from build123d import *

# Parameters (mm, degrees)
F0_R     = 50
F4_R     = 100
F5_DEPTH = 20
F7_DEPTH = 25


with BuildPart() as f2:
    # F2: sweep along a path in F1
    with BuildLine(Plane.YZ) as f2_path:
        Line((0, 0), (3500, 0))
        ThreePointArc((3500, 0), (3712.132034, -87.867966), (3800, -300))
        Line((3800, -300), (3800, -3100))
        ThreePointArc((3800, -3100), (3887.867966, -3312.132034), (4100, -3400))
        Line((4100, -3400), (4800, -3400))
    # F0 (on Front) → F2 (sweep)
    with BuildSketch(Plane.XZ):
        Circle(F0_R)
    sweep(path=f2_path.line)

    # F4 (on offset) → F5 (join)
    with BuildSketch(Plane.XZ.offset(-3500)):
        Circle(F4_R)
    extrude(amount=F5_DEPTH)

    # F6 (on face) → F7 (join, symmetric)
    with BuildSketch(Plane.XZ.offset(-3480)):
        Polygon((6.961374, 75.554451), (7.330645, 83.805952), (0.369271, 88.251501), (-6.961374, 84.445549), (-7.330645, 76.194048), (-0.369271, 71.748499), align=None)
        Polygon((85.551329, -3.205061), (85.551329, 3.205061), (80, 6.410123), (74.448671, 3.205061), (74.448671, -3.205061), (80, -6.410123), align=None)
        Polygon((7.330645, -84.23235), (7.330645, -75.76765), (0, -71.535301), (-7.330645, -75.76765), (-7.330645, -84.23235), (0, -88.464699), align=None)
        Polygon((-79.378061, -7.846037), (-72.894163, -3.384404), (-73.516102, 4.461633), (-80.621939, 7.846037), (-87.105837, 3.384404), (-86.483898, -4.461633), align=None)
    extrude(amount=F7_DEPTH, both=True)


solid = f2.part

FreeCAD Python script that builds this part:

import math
import FreeCAD as App
import Part
import Sketcher

V = App.Vector
Q = App.Units.Quantity


def add_polygon(sketch, points):
    """Adds a closed chain of lines whose ends are joined by coincident constraints."""
    first, n = sketch.GeometryCount, len(points)
    for a, b in zip(points, points[1:] + points[:1]):
        sketch.addGeometry(Part.LineSegment(App.Vector(*a, 0), App.Vector(*b, 0)), False)
    for i in range(n):
        sketch.addConstraint(Sketcher.Constraint("Coincident", first + i, 2, first + (i + 1) % n, 1))

doc = App.newDocument("Part")
body = doc.addObject("PartDesign::Body", "Body")

sketch1 = doc.addObject("Sketcher::SketchObject", "Sketch")
body.addObject(sketch1)
sketch1.AttachmentSupport = (doc.XZ_Plane, [""])
sketch1.MapMode = "FlatFace"
sketch1.addGeometry(Part.Circle(V(0, 0, 0), V(0, 0, 1), 50), False)
sketch1.addConstraint(Sketcher.Constraint("Coincident", 0, 3, -1, 1))
sketch1.addConstraint(Sketcher.Constraint("Diameter", 0, 100.0))

sketch2 = doc.addObject("Sketcher::SketchObject", "Sketch001")
body.addObject(sketch2)
sketch2.AttachmentSupport = (doc.YZ_Plane, [""])
sketch2.MapMode = "FlatFace"
sketch2.addGeometry(Part.LineSegment(V(0, 0, 0), V(3500, 0, 0)), False)
sketch2.addGeometry(Part.ArcOfCircle(Part.Circle(V(3500, -300, 0), V(0, 0, 1), 300), math.radians(0), math.radians(90)), False)
sketch2.addGeometry(Part.LineSegment(V(3800, -300, 0), V(3800, -3100, 0)), False)
sketch2.addGeometry(Part.ArcOfCircle(Part.Circle(V(4100, -3100, 0), V(0, 0, 1), 300), math.radians(-180), math.radians(-90)), False)
sketch2.addGeometry(Part.LineSegment(V(4100, -3400, 0), V(4800, -3400, 0)), False)
sketch2.addConstraint(Sketcher.Constraint("Tangent", 0, 2, 1, 2))
sketch2.addConstraint(Sketcher.Constraint("Tangent", 1, 1, 2, 1))
sketch2.addConstraint(Sketcher.Constraint("Tangent", 2, 2, 3, 1))
sketch2.addConstraint(Sketcher.Constraint("Tangent", 3, 2, 4, 1))
sketch2.addConstraint(Sketcher.Constraint("Horizontal", 0))
sketch2.addConstraint(Sketcher.Constraint("Vertical", 2))
sketch2.addConstraint(Sketcher.Constraint("Horizontal", 4))
sketch2.addConstraint(Sketcher.Constraint("Coincident", 0, 1, -1, 1))
sketch2.addConstraint(Sketcher.Constraint("Equal", 1, 3))
sketch2.addConstraint(Sketcher.Constraint("Radius", 1, 300.000001))
sketch2.addConstraint(Sketcher.Constraint("DistanceX", 0, 1, 0, 2, 3500.0))
sketch2.addConstraint(Sketcher.Constraint("DistanceX", 4, 1, 4, 2, 700.0))
sketch2.addConstraint(Sketcher.Constraint("DistanceY", 2, 2, 2, 1, 2800.0))
doc.recompute()

additivepipe = doc.addObject("PartDesign::AdditivePipe", "AdditivePipe")
body.addObject(additivepipe)
additivepipe.Profile = sketch1
additivepipe.Spine = (sketch2, ["Edge1", "Edge2", "Edge3", "Edge4", "Edge5"])

sketch3 = doc.addObject("Sketcher::SketchObject", "Sketch002")
body.addObject(sketch3)
sketch3.AttachmentSupport = (doc.XZ_Plane, [""])
sketch3.MapMode = "FlatFace"
sketch3.AttachmentOffset = App.Placement(V(0, 0, -3500), App.Rotation())
sketch3.addGeometry(Part.Circle(V(0, 0, 0), V(0, 0, 1), 100), False)
sketch3.addConstraint(Sketcher.Constraint("Coincident", 0, 3, -1, 1))
sketch3.addConstraint(Sketcher.Constraint("Diameter", 0, 200.0))
pad1 = doc.addObject("PartDesign::Pad", "Pad")
body.addObject(pad1)
pad1.Profile = sketch3
pad1.Length = 20

sketch4 = doc.addObject("Sketcher::SketchObject", "Sketch003")
body.addObject(sketch4)
sketch4.AttachmentSupport = (doc.XZ_Plane, [""])
sketch4.MapMode = "FlatFace"
sketch4.AttachmentOffset = App.Placement(V(0, 0, -3480), App.Rotation())
add_polygon(sketch4, [(7, 76), (7, 84), (0, 88), (-7, 84), (-7, 76), (0, 72)])
add_polygon(sketch4, [(86, -3), (86, 3), (80, 6), (74, 3), (74, -3), (80, -6)])
add_polygon(sketch4, [(7, -84), (7, -76), (0, -72), (-7, -76), (-7, -84), (0, -88)])
add_polygon(sketch4, [(-79, -8), (-73, -3), (-74, 4), (-81, 8), (-87, 3), (-86, -4)])
sketch4.addConstraint(Sketcher.Constraint("Vertical", 6))
sketch4.addConstraint(Sketcher.Constraint("Vertical", 9))
sketch4.addConstraint(Sketcher.Constraint("Vertical", 12))
sketch4.addConstraint(Sketcher.Constraint("Vertical", 15))
sketch4.addConstraint(Sketcher.Constraint("Symmetric", 12, 2, 14, 2, -2))
sketch4.addConstraint(Sketcher.Constraint("Symmetric", 7, 2, 10, 2, -1))
sketch4.addConstraint(Sketcher.Constraint("PointOnObject", 13, 2, -2))
sketch4.addConstraint(Sketcher.Constraint("PointOnObject", 16, 2, -2))
sketch4.addConstraint(Sketcher.Constraint("Parallel", 0, 3))
sketch4.addConstraint(Sketcher.Constraint("Parallel", 1, 4))
sketch4.addConstraint(Sketcher.Constraint("Parallel", 2, 5))
sketch4.addConstraint(Sketcher.Constraint("Parallel", 7, 10))
sketch4.addConstraint(Sketcher.Constraint("Parallel", 8, 11))
sketch4.addConstraint(Sketcher.Constraint("Parallel", 10, 13))
sketch4.addConstraint(Sketcher.Constraint("Parallel", 11, 14))
sketch4.addConstraint(Sketcher.Constraint("Parallel", 13, 16))
sketch4.addConstraint(Sketcher.Constraint("Parallel", 14, 17))
sketch4.addConstraint(Sketcher.Constraint("Parallel", 18, 21))
sketch4.addConstraint(Sketcher.Constraint("Parallel", 19, 22))
sketch4.addConstraint(Sketcher.Constraint("Parallel", 20, 23))
sketch4.addConstraint(Sketcher.Constraint("Horizontal", 6, 2, 8, 2))
sketch4.addConstraint(Sketcher.Constraint("Vertical", 0, 2, 12, 2))
sketch4.addConstraint(Sketcher.Constraint("Vertical", 3, 2, 14, 2))
sketch4.addConstraint(Sketcher.Constraint("Equal", 0, 1))
sketch4.addConstraint(Sketcher.Constraint("Equal", 1, 2))
sketch4.addConstraint(Sketcher.Constraint("Equal", 2, 3))
sketch4.addConstraint(Sketcher.Constraint("Equal", 18, 19))
sketch4.addConstraint(Sketcher.Constraint("Equal", 19, 20))
sketch4.addConstraint(Sketcher.Constraint("Equal", 20, 21))
sketch4.addConstraint(Sketcher.Constraint("Angle", 7, Q("149.999995 deg")))
sketch4.addConstraint(Sketcher.Constraint("DistanceX", -1, 1, 7, 2, 80.0))
sketch4.addConstraint(Sketcher.Constraint("DistanceY", 12, 1, 12, 2, 8.4647))
sketch4.addConstraint(Sketcher.Constraint("Distance", 13, 8.464699))
sketch4.addConstraint(Sketcher.Constraint("DistanceY", -1, 1, 1, 2, 88.251501))
sketch4.addConstraint(Sketcher.Constraint("DistanceY", -1, 1, 4, 2, 71.748499))
sketch4.addConstraint(Sketcher.Constraint("DistanceY", 13, 2, -1, 1, 71.535301))
sketch4.addConstraint(Sketcher.Constraint("DistanceY", 3, 2, 2, 2, 8.251501))
sketch4.addConstraint(Sketcher.Constraint("DistanceX", 4, 2, 6, 2, 85.9206))
sketch4.addConstraint(Sketcher.Constraint("Distance", 18, 7.870648))
sketch4.addConstraint(Sketcher.Constraint("DistanceY", 6, 1, 6, 2, 6.410122))
sketch4.addConstraint(Sketcher.Constraint("DistanceX", -1, 1, 1, 2, 0.369271))
sketch4.addConstraint(Sketcher.Constraint("DistanceX", 20, 2, -1, 1, 80.621939))
sketch4.addConstraint(Sketcher.Constraint("DistanceX", 23, 2, -1, 1, 79.378061))
sketch4.addConstraint(Sketcher.Constraint("DistanceX", 18, 2, 14, 2, 65.563518))
sketch4.addConstraint(Sketcher.Constraint("DistanceY", 18, 2, 3, 2, 79.578452))
sketch4.addConstraint(Sketcher.Constraint("DistanceX", 19, 2, 18, 2, 0.621939))
pad2 = doc.addObject("PartDesign::Pad", "Pad001")
body.addObject(pad2)
pad2.Profile = sketch4
pad2.Length = 50
pad2.Midplane = True

doc.recompute()
